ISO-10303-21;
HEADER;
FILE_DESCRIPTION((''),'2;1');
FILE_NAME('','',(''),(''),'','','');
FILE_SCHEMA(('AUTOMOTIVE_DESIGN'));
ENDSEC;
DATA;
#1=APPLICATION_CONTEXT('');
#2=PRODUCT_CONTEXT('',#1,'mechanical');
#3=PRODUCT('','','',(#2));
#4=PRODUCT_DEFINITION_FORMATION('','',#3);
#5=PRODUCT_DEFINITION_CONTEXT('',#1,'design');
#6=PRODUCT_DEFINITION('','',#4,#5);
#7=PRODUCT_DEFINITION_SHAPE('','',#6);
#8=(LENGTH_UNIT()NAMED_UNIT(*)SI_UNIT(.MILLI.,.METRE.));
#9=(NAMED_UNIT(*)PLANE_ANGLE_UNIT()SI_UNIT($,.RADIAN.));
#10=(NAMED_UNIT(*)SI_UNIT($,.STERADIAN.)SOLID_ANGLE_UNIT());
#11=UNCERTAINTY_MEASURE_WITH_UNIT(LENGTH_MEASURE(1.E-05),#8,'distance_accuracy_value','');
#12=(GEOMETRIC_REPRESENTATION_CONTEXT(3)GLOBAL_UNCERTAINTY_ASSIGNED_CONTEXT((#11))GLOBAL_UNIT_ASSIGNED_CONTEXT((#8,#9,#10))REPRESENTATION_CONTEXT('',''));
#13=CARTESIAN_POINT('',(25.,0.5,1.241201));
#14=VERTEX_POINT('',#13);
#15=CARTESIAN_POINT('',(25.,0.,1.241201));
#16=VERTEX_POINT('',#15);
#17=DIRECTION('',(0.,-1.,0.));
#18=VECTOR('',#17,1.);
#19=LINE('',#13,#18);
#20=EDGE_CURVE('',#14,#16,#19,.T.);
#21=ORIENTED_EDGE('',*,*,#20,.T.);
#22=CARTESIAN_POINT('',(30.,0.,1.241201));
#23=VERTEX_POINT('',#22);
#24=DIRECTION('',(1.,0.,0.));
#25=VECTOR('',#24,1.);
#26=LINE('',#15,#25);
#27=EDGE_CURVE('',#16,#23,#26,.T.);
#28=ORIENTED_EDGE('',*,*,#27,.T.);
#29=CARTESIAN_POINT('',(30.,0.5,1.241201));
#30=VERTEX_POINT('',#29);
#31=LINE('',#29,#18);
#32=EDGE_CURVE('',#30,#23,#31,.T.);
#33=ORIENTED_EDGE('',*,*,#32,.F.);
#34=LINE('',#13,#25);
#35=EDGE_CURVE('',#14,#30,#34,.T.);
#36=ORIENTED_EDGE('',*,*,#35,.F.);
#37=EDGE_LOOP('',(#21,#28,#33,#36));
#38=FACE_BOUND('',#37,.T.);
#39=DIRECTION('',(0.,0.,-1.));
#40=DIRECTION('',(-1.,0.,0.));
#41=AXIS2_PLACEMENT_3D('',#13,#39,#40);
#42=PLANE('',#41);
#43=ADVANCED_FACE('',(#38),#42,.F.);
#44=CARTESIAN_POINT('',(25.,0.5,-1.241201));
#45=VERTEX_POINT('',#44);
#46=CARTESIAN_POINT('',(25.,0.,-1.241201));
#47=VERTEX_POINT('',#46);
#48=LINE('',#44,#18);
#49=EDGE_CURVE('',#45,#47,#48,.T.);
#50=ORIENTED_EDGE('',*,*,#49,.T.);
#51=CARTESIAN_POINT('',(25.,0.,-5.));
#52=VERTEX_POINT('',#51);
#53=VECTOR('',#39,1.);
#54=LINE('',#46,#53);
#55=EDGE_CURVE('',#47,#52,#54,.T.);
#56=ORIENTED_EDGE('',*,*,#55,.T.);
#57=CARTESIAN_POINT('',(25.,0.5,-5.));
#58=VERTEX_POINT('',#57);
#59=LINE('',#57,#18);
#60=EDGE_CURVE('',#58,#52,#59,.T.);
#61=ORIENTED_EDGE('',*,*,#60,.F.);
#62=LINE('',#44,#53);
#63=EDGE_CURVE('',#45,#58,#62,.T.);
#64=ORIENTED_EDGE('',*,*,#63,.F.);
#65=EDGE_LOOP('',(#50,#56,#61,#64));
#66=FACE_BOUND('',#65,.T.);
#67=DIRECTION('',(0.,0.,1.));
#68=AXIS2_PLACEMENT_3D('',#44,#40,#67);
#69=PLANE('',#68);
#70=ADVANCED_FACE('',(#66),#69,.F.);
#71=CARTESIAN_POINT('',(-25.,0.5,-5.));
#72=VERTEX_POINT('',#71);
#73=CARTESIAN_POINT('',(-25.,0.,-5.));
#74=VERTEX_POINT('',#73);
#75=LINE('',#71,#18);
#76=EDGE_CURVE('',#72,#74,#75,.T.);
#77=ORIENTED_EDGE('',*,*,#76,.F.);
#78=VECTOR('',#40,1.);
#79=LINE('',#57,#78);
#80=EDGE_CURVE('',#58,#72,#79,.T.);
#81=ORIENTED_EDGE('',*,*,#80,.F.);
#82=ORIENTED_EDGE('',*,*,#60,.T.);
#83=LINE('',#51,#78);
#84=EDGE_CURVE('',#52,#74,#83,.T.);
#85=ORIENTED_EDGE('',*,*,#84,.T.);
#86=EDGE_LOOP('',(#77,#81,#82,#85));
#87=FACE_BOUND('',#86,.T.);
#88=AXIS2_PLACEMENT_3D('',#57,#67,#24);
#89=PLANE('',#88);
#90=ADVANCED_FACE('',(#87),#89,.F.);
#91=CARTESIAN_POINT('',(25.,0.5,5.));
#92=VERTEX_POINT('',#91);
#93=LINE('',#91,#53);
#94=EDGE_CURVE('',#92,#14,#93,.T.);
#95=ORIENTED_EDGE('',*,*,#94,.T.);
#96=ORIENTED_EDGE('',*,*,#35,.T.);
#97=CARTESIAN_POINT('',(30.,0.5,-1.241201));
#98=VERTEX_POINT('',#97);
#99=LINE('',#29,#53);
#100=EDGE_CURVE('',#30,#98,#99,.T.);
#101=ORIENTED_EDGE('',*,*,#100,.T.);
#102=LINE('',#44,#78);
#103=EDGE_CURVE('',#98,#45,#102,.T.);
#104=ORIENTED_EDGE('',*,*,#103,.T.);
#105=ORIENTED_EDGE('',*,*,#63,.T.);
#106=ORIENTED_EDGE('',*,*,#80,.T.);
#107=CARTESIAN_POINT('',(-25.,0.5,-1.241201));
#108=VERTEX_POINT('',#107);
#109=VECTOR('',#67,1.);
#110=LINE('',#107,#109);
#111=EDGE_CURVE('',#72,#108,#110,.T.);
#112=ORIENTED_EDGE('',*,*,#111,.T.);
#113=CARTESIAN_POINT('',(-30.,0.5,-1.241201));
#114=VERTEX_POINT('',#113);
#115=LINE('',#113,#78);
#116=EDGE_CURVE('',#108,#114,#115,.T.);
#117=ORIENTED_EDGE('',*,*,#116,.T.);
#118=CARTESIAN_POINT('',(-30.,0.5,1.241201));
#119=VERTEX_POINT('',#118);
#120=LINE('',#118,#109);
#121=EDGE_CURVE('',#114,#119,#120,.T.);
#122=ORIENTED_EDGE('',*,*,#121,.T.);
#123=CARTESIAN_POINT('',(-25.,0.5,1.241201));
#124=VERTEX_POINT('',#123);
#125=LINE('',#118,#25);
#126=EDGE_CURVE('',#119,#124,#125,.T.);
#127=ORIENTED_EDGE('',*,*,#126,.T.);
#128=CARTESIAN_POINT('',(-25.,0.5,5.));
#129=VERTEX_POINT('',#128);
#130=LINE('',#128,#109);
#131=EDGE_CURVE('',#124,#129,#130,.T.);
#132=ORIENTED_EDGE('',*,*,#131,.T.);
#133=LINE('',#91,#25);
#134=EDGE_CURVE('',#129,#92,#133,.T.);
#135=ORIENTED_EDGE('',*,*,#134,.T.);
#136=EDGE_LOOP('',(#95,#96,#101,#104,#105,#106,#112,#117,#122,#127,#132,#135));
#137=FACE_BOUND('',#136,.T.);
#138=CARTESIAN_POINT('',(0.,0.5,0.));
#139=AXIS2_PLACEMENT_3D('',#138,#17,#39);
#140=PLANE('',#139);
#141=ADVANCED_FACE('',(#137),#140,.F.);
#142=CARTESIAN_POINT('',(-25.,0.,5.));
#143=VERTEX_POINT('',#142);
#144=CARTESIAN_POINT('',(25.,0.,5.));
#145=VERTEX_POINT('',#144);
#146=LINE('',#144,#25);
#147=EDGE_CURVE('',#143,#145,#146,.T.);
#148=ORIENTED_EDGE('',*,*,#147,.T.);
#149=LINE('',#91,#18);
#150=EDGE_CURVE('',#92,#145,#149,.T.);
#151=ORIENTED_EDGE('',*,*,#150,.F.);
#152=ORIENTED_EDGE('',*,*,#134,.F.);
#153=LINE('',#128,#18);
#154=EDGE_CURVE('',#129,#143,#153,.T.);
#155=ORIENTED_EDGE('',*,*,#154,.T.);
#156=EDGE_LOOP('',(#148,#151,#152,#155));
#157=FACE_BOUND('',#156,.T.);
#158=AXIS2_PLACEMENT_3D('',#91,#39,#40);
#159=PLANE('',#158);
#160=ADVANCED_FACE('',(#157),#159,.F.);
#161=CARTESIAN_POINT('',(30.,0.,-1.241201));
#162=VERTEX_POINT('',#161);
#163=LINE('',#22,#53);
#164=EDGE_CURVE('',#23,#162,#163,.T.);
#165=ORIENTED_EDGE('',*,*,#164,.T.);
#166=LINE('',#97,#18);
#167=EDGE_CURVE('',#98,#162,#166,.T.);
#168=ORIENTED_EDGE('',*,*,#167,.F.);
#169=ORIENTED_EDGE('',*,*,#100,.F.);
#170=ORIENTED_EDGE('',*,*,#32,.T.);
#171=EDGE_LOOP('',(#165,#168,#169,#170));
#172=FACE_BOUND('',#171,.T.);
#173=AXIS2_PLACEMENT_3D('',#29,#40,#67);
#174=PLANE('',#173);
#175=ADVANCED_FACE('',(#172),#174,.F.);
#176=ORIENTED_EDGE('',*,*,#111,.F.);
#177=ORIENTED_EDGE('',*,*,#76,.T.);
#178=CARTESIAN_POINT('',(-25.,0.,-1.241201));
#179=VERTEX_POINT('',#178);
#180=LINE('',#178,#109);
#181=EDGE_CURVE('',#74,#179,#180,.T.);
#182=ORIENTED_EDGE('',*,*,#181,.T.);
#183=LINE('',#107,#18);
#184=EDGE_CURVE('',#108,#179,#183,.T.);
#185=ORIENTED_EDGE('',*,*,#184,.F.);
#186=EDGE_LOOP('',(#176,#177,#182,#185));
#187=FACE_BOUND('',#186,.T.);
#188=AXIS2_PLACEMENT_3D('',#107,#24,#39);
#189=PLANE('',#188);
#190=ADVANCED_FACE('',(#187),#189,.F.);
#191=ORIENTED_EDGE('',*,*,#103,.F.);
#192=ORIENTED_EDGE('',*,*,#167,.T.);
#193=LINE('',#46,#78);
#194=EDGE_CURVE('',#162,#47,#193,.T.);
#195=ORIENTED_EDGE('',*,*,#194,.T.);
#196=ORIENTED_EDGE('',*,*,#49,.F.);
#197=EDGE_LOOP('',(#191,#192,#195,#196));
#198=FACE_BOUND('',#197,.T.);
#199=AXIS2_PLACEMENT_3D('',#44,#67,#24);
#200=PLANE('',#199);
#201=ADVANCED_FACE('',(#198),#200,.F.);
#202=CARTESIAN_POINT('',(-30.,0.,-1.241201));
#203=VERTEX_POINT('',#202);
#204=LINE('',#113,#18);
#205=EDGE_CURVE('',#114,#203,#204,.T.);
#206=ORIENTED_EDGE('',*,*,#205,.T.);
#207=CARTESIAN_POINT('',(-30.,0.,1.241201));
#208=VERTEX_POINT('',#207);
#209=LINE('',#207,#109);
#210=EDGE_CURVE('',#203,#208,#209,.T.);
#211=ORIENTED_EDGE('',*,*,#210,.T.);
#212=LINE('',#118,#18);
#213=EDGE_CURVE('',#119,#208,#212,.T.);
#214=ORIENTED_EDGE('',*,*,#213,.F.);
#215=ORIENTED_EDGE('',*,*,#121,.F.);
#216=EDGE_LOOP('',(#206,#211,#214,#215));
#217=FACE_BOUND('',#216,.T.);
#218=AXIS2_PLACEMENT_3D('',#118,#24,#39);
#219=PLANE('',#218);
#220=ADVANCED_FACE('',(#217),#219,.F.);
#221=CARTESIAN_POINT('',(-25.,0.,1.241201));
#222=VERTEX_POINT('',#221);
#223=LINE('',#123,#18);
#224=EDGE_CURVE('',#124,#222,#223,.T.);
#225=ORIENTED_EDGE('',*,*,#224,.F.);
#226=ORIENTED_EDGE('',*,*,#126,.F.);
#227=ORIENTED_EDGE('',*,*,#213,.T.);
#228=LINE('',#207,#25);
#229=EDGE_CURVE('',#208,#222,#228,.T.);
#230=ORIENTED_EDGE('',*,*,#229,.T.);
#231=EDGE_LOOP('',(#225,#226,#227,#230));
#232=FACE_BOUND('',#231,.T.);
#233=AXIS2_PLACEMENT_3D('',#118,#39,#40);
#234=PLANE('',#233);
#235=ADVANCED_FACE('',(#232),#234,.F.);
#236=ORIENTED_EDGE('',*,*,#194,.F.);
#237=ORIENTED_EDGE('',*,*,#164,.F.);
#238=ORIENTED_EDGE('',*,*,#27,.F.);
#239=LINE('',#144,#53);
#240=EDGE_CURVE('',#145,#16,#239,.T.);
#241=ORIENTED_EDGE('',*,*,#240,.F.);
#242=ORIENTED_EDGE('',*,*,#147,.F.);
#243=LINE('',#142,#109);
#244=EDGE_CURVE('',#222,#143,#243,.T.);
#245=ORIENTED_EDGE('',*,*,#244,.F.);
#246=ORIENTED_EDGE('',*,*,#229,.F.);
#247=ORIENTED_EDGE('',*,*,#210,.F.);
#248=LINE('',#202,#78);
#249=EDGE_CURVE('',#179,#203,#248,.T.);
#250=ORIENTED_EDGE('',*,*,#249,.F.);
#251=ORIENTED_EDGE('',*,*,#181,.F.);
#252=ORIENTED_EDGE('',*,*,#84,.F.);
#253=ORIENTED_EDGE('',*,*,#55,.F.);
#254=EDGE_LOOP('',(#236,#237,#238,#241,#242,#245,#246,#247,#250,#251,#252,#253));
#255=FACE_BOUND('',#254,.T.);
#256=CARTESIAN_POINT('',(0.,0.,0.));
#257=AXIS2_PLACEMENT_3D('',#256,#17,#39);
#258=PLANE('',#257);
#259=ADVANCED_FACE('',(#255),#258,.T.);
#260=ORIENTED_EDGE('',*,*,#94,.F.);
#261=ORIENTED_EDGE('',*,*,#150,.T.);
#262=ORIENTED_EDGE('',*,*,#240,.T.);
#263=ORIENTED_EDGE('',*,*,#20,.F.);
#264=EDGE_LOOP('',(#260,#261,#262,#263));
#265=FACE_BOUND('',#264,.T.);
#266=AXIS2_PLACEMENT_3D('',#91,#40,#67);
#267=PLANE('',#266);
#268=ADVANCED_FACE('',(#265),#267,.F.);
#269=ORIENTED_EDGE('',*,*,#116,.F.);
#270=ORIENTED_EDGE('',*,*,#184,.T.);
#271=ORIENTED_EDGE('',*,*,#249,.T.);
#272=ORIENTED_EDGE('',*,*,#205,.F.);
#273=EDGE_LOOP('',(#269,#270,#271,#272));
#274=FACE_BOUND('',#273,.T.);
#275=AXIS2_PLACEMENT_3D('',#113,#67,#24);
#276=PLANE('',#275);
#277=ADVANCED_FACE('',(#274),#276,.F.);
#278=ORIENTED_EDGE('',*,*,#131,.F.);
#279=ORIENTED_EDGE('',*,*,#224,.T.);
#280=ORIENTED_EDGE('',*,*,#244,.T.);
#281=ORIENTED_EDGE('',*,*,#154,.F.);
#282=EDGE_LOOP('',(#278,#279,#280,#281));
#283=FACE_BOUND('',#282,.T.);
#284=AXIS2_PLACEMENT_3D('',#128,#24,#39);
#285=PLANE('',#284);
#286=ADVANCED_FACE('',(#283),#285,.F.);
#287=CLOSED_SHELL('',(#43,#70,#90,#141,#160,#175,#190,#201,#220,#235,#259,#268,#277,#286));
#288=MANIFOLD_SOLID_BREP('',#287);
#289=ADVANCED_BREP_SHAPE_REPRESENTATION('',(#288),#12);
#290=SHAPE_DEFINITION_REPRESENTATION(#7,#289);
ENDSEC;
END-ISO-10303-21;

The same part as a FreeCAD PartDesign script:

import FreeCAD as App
import Part
import Sketcher

V = App.Vector
Q = App.Units.Quantity

doc = App.newDocument("Part")
body = doc.addObject("PartDesign::Body", "Body")

# Sketch on XZ plane
sketch1 = body.newObject("Sketcher::SketchObject", "Sketch")
sketch1.AttachmentSupport = (doc.getObject("XZ_Plane"), [""])
sketch1.MapMode = "FlatFace"
sketch1.addGeometry([
    Part.LineSegment(V(-25, -5, 0), V(-25, -1.2, 0)),  # 0
    Part.LineSegment(V(-25, -1.2, 0), V(-30, -1.2, 0)),  # 1
    Part.LineSegment(V(-30, -1.2, 0), V(-30, 1.2, 0)),  # 2
    Part.LineSegment(V(-30, 1.2, 0), V(-25, 1.2, 0)),  # 3
    Part.LineSegment(V(-25, 1.2, 0), V(-25, 5, 0)),  # 4
    Part.LineSegment(V(-25, 5, 0), V(25, 5, 0)),  # 5
    Part.LineSegment(V(25, 5, 0), V(25, 1.2, 0)),  # 6
    Part.LineSegment(V(25, 1.2, 0), V(30, 1.2, 0)),  # 7
    Part.LineSegment(V(30, 1.2, 0), V(30, -1.2, 0)),  # 8
    Part.LineSegment(V(30, -1.2, 0), V(25, -1.2, 0)),  # 9
    Part.LineSegment(V(25, -1.2, 0), V(25, -5, 0)),  # 10
    Part.LineSegment(V(25, -5, 0), V(-25, -5, 0)),  # 11
], False)
sketch1.addConstraint([
    Sketcher.Constraint("Coincident", 0, 2, 1, 1),
    Sketcher.Constraint("Coincident", 1, 2, 2, 1),
    Sketcher.Constraint("Coincident", 2, 2, 3, 1),
    Sketcher.Constraint("Coincident", 3, 2, 4, 1),
    Sketcher.Constraint("Coincident", 4, 2, 5, 1),
    Sketcher.Constraint("Coincident", 5, 2, 6, 1),
    Sketcher.Constraint("Coincident", 6, 2, 7, 1),
    Sketcher.Constraint("Coincident", 7, 2, 8, 1),
    Sketcher.Constraint("Coincident", 8, 2, 9, 1),
    Sketcher.Constraint("Coincident", 9, 2, 10, 1),
    Sketcher.Constraint("Coincident", 10, 2, 11, 1),
    Sketcher.Constraint("Coincident", 11, 2, 0, 1),
    Sketcher.Constraint("Vertical", 0),
    Sketcher.Constraint("Horizontal", 1),
    Sketcher.Constraint("Vertical", 2),
    Sketcher.Constraint("Horizontal", 3),
    Sketcher.Constraint("Vertical", 4),
    Sketcher.Constraint("Horizontal", 5),
    Sketcher.Constraint("Vertical", 6),
    Sketcher.Constraint("Horizontal", 7),
    Sketcher.Constraint("Vertical", 8),
    Sketcher.Constraint("Horizontal", 9),
    Sketcher.Constraint("Vertical", 10),
    Sketcher.Constraint("Horizontal", 11),
    Sketcher.Constraint("Symmetric", 0, 2, 6, 2, -1, 1),
    Sketcher.Constraint("Symmetric", 2, 2, 8, 2, -1, 1),
    Sketcher.Constraint("Symmetric", 4, 2, 10, 2, -1, 1),
    Sketcher.Constraint("Symmetric", 3, 2, 6, 2, -2),
    Sketcher.Constraint("DistanceX", 1, 2, 1, 1, Q("5 mm")),
    Sketcher.Constraint("DistanceX", 5, 1, 5, 2, Q("50 mm")),
    Sketcher.Constraint("DistanceY", -1, 1, 4, 2, Q("5 mm")),
    Sketcher.Constraint("DistanceY", 0, 1, 0, 2, Q("3.758799 mm")),
])
pad1 = body.newObject("PartDesign::Pad", "Pad")
pad1.Profile = sketch1
pad1.Length = 0.5
pad1.Reversed = True

doc.recompute()
